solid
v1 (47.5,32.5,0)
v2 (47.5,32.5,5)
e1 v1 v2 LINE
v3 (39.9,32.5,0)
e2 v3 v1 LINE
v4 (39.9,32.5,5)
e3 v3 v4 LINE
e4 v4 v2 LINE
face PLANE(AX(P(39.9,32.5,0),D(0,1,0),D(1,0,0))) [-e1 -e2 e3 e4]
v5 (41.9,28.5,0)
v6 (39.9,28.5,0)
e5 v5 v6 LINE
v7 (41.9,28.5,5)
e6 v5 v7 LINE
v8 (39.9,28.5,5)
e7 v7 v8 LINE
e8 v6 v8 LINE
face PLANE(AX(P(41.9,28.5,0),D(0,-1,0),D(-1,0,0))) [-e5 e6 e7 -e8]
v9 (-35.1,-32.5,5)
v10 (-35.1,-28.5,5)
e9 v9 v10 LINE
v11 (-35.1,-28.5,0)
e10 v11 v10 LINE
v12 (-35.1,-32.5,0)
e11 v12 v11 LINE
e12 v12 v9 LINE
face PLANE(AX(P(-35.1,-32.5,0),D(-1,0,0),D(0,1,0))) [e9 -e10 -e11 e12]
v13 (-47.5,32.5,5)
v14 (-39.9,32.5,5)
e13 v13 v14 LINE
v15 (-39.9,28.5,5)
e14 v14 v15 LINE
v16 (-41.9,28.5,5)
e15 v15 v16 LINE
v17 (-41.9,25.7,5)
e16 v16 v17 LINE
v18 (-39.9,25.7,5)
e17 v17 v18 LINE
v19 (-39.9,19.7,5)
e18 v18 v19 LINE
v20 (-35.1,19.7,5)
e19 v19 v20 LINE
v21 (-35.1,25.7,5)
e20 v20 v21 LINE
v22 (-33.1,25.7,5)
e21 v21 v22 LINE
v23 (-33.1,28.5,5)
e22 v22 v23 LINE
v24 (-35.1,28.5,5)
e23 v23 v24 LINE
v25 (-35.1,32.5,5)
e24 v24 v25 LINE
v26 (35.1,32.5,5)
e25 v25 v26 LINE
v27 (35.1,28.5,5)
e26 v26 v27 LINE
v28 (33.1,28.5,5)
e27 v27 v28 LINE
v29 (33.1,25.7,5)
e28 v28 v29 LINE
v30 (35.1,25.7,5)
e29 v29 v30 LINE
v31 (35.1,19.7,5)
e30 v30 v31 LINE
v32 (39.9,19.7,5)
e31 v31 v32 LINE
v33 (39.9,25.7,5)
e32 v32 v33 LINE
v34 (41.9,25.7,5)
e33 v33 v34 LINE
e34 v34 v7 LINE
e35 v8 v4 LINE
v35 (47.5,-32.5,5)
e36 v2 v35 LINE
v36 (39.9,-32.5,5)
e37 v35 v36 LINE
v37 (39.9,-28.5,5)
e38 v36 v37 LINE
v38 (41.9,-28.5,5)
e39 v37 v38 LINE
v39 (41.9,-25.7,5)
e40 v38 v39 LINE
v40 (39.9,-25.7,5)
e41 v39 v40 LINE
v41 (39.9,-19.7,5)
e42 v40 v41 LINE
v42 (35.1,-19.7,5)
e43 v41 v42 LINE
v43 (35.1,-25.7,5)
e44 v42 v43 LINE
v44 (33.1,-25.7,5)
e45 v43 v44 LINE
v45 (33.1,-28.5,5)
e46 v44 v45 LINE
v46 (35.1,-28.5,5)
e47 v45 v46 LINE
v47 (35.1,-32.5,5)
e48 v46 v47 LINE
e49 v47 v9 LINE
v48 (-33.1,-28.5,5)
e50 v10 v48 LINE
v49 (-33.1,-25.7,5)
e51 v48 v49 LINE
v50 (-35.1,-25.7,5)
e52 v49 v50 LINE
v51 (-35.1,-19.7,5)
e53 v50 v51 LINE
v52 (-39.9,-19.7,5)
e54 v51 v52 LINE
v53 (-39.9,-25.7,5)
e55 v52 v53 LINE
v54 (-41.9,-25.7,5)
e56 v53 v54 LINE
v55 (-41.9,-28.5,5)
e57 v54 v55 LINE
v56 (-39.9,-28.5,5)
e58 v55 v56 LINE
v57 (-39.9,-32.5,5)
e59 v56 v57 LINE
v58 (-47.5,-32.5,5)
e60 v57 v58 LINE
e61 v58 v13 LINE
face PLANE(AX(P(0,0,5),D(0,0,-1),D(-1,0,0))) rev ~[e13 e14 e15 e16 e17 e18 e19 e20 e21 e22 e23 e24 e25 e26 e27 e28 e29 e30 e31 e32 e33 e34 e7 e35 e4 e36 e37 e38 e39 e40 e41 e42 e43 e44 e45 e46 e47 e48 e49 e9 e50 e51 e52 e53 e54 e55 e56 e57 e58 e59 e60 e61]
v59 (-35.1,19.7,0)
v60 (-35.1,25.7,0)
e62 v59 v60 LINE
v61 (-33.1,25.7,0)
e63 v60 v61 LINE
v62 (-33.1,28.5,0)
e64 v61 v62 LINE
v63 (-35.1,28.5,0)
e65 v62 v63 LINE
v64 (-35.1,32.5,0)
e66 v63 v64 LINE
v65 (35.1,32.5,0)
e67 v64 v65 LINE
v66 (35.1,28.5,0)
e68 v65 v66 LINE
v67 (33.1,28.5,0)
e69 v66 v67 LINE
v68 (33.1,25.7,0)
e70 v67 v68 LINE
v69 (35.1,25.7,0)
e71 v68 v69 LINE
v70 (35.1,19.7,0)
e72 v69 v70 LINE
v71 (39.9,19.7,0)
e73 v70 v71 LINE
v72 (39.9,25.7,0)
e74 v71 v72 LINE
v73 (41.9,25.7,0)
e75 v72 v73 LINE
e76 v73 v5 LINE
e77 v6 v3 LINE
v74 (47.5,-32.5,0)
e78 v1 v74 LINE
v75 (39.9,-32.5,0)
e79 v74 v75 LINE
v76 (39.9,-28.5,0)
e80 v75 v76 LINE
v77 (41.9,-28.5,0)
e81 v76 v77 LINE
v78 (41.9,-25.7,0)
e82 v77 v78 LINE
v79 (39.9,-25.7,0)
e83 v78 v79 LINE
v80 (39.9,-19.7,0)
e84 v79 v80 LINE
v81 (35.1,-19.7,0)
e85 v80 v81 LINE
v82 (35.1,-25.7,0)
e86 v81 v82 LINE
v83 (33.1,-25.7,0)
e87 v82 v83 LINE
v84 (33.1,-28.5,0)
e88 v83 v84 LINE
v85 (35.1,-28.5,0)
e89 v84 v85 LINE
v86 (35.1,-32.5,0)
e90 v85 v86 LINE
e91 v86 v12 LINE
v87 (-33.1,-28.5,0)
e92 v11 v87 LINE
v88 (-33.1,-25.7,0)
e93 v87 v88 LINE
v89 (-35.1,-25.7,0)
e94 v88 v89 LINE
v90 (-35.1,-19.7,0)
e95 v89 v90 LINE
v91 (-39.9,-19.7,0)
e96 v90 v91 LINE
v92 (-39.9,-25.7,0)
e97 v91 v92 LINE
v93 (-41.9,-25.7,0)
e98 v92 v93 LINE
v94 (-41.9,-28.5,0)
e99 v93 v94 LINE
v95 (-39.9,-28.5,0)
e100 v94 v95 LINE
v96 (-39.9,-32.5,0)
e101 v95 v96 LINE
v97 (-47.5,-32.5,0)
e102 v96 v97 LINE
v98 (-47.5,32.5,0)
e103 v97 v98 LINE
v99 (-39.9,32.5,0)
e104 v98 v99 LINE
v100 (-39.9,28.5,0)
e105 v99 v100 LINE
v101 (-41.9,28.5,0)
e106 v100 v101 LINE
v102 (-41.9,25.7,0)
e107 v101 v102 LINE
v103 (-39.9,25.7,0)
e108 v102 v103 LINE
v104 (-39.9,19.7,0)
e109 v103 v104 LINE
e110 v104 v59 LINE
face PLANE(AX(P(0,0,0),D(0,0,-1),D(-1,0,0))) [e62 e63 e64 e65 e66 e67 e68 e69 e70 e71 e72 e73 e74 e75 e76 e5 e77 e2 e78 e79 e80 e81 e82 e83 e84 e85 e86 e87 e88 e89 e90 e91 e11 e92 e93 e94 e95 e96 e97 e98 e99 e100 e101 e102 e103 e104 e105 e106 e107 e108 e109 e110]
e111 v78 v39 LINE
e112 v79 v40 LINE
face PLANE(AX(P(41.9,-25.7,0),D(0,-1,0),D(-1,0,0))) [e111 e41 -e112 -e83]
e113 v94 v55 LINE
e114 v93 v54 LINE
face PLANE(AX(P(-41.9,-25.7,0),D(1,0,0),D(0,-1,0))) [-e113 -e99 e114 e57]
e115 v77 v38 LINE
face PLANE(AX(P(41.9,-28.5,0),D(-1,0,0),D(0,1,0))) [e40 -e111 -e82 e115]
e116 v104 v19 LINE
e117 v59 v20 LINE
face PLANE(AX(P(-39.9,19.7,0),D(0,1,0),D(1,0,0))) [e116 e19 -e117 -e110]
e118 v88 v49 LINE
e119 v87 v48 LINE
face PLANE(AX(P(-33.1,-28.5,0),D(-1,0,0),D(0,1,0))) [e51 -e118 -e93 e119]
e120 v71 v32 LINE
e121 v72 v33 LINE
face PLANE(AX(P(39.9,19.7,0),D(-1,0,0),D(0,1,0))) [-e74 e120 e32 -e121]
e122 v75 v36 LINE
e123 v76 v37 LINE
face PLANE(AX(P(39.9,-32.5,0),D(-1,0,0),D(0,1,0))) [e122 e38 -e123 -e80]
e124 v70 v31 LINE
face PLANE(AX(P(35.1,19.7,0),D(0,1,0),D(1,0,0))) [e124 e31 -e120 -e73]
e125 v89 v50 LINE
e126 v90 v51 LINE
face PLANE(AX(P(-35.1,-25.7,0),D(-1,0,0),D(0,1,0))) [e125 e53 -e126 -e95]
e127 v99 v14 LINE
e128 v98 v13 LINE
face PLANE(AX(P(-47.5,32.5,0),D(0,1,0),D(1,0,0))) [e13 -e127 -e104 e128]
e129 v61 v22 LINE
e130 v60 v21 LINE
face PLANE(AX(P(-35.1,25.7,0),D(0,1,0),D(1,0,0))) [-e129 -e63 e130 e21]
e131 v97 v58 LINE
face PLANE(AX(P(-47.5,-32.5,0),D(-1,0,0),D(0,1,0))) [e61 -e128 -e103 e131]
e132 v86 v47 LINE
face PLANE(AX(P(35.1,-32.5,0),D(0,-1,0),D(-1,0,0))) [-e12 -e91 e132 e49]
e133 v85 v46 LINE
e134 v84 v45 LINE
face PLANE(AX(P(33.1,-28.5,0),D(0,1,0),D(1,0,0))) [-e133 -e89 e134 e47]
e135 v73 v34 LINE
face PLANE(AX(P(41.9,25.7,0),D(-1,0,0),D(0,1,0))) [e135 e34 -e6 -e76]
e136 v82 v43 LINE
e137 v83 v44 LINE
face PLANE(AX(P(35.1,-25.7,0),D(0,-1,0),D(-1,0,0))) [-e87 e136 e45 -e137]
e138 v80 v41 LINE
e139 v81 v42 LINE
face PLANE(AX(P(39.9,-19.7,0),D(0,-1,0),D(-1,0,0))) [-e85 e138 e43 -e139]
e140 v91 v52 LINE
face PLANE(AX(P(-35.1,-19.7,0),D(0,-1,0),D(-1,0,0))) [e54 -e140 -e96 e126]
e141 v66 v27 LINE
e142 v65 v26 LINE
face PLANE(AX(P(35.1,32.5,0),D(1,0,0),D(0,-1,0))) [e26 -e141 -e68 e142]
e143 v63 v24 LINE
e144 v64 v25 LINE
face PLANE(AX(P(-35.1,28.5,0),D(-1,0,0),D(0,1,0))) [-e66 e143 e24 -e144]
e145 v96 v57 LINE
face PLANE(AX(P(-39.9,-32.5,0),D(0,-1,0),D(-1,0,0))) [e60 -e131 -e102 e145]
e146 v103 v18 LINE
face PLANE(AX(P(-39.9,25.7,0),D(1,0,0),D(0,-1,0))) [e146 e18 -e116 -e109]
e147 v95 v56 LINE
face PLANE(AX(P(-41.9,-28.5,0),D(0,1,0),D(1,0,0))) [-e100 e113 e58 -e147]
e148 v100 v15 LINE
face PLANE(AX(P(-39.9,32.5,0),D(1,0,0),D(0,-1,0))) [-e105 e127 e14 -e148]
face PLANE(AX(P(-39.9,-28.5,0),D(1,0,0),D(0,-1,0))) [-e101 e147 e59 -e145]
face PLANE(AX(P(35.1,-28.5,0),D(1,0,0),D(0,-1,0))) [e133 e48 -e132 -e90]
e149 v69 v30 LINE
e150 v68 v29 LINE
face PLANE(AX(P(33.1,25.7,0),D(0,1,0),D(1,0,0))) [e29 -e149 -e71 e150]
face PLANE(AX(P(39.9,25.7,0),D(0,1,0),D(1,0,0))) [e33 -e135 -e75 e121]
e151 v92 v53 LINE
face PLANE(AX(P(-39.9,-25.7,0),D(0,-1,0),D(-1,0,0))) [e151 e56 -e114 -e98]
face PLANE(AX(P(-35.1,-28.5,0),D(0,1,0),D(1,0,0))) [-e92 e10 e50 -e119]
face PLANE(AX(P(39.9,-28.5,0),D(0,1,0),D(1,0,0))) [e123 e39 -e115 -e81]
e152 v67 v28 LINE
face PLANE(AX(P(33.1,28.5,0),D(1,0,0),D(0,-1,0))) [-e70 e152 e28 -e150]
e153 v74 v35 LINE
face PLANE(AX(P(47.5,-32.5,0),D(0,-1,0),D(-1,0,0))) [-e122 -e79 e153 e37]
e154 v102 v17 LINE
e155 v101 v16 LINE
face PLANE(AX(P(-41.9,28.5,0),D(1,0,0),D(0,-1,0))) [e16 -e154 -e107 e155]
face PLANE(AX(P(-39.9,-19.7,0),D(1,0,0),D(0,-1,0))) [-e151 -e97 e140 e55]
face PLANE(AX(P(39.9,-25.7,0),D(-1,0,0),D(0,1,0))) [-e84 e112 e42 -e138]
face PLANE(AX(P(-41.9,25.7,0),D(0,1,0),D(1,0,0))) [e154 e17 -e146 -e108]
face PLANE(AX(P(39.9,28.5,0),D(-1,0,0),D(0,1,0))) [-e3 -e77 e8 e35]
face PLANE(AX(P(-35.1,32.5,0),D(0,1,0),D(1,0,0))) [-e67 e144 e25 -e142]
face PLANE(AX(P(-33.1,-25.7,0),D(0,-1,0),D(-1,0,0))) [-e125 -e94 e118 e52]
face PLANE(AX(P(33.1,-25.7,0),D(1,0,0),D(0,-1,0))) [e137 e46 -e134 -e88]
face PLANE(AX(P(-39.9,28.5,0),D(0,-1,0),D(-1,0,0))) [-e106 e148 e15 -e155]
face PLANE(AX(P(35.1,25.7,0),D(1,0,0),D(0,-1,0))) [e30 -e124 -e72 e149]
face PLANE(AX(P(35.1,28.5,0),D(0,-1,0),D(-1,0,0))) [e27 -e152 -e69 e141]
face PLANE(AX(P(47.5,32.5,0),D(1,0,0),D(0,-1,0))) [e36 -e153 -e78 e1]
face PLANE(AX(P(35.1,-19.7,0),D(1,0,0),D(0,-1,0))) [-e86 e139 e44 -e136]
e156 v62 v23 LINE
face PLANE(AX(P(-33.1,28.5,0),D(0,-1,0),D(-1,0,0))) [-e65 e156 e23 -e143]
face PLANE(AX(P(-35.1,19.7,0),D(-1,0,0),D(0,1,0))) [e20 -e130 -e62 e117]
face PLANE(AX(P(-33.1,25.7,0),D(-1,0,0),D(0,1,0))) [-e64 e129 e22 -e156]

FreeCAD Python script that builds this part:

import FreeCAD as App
import Part
import Sketcher
Q = App.Units.Quantity


def add_polygon(sketch, points):
    """Adds a closed chain of lines whose ends are joined by coincident constraints."""
    first, n = sketch.GeometryCount, len(points)
    for a, b in zip(points, points[1:] + points[:1]):
        sketch.addGeometry(Part.LineSegment(App.Vector(*a, 0), App.Vector(*b, 0)), False)
    for i in range(n):
        sketch.addConstraint(Sketcher.Constraint("Coincident", first + i, 2, first + (i + 1) % n, 1))

doc = App.newDocument("Part")
body = doc.addObject("PartDesign::Body", "Body")

sketch1 = body.newObject("Sketcher::SketchObject", "Sketch")
sketch1.AttachmentSupport = (doc.getObject("XY_Plane"), [""])
sketch1.MapMode = "FlatFace"
add_polygon(sketch1, [(-39.9, 32.5), (-47.5, 32.5), (-47.5, -32.5), (-39.9, -32.5), (-39.9, -28.5), (-41.9, -28.5), (-41.9, -25.7), (-39.9, -25.7), (-39.9, -19.7), (-35.1, -19.7), (-35.1, -25.7), (-33.1, -25.7), (-33.1, -28.5), (-35.1, -28.5), (-35.1, -32.5), (35.1, -32.5), (35.1, -28.5), (33.1, -28.5), (33.1, -25.7), (35.1, -25.7), (35.1, -19.7), (39.9, -19.7), (39.9, -25.7), (41.9, -25.7), (41.9, -28.5), (39.9, -28.5), (39.9, -32.5), (47.5, -32.5), (47.5, 32.5), (39.9, 32.5), (39.9, 28.5), (41.9, 28.5), (41.9, 25.7), (39.9, 25.7), (39.9, 19.7), (35.1, 19.7), (35.1, 25.7), (33.1, 25.7), (33.1, 28.5), (35.1, 28.5), (35.1, 32.5), (-35.1, 32.5), (-35.1, 28.5), (-33.1, 28.5), (-33.1, 25.7), (-35.1, 25.7), (-35.1, 19.7), (-39.9, 19.7), (-39.9, 25.7), (-41.9, 25.7), (-41.9, 28.5), (-39.9, 28.5)])
sketch1.addConstraint(Sketcher.Constraint("Horizontal", 0))
sketch1.addConstraint(Sketcher.Constraint("Vertical", 1))
sketch1.addConstraint(Sketcher.Constraint("Horizontal", 2))
sketch1.addConstraint(Sketcher.Constraint("Vertical", 3))
sketch1.addConstraint(Sketcher.Constraint("Horizontal", 4))
sketch1.addConstraint(Sketcher.Constraint("Vertical", 5))
sketch1.addConstraint(Sketcher.Constraint("Horizontal", 6))
sketch1.addConstraint(Sketcher.Constraint("Vertical", 7))
sketch1.addConstraint(Sketcher.Constraint("Horizontal", 8))
sketch1.addConstraint(Sketcher.Constraint("Vertical", 9))
sketch1.addConstraint(Sketcher.Constraint("Horizontal", 10))
sketch1.addConstraint(Sketcher.Constraint("Vertical", 11))
sketch1.addConstraint(Sketcher.Constraint("Horizontal", 12))
sketch1.addConstraint(Sketcher.Constraint("Vertical", 13))
sketch1.addConstraint(Sketcher.Constraint("Horizontal", 14))
sketch1.addConstraint(Sketcher.Constraint("Vertical", 15))
sketch1.addConstraint(Sketcher.Constraint("Horizontal", 16))
sketch1.addConstraint(Sketcher.Constraint("Vertical", 17))
sketch1.addConstraint(Sketcher.Constraint("Horizontal", 18))
sketch1.addConstraint(Sketcher.Constraint("Vertical", 19))
sketch1.addConstraint(Sketcher.Constraint("Horizontal", 20))
sketch1.addConstraint(Sketcher.Constraint("Vertical", 21))
sketch1.addConstraint(Sketcher.Constraint("Horizontal", 22))
sketch1.addConstraint(Sketcher.Constraint("Vertical", 23))
sketch1.addConstraint(Sketcher.Constraint("Horizontal", 24))
sketch1.addConstraint(Sketcher.Constraint("Vertical", 25))
sketch1.addConstraint(Sketcher.Constraint("Horizontal", 26))
sketch1.addConstraint(Sketcher.Constraint("Vertical", 27))
sketch1.addConstraint(Sketcher.Constraint("Horizontal", 28))
sketch1.addConstraint(Sketcher.Constraint("Vertical", 29))
sketch1.addConstraint(Sketcher.Constraint("Horizontal", 30))
sketch1.addConstraint(Sketcher.Constraint("Vertical", 31))
sketch1.addConstraint(Sketcher.Constraint("Horizontal", 32))
sketch1.addConstraint(Sketcher.Constraint("Vertical", 33))
sketch1.addConstraint(Sketcher.Constraint("Horizontal", 34))
sketch1.addConstraint(Sketcher.Constraint("Vertical", 35))
sketch1.addConstraint(Sketcher.Constraint("Horizontal", 36))
sketch1.addConstraint(Sketcher.Constraint("Vertical", 37))
sketch1.addConstraint(Sketcher.Constraint("Horizontal", 38))
sketch1.addConstraint(Sketcher.Constraint("Vertical", 39))
sketch1.addConstraint(Sketcher.Constraint("Horizontal", 40))
sketch1.addConstraint(Sketcher.Constraint("Vertical", 41))
sketch1.addConstraint(Sketcher.Constraint("Horizontal", 42))
sketch1.addConstraint(Sketcher.Constraint("Vertical", 43))
sketch1.addConstraint(Sketcher.Constraint("Horizontal", 44))
sketch1.addConstraint(Sketcher.Constraint("Vertical", 45))
sketch1.addConstraint(Sketcher.Constraint("Horizontal", 46))
sketch1.addConstraint(Sketcher.Constraint("Vertical", 47))
sketch1.addConstraint(Sketcher.Constraint("Horizontal", 48))
sketch1.addConstraint(Sketcher.Constraint("Vertical", 49))
sketch1.addConstraint(Sketcher.Constraint("Horizontal", 50))
sketch1.addConstraint(Sketcher.Constraint("Vertical", 51))
sketch1.addConstraint(Sketcher.Constraint("Symmetric", 0, 2, 26, 2, -1, 1))
sketch1.addConstraint(Sketcher.Constraint("Symmetric", 2, 2, 28, 2, -1, 1))
sketch1.addConstraint(Sketcher.Constraint("Symmetric", 4, 2, 30, 2, -1, 1))
sketch1.addConstraint(Sketcher.Constraint("Symmetric", 6, 2, 32, 2, -1, 1))
sketch1.addConstraint(Sketcher.Constraint("Symmetric", 8, 2, 34, 2, -1, 1))
sketch1.addConstraint(Sketcher.Constraint("Symmetric", 10, 2, 36, 2, -1, 1))
sketch1.addConstraint(Sketcher.Constraint("Symmetric", 12, 2, 38, 2, -1, 1))
sketch1.addConstraint(Sketcher.Constraint("Symmetric", 14, 2, 40, 2, -1, 1))
sketch1.addConstraint(Sketcher.Constraint("Symmetric", 16, 2, 42, 2, -1, 1))
sketch1.addConstraint(Sketcher.Constraint("Symmetric", 18, 2, 44, 2, -1, 1))
sketch1.addConstraint(Sketcher.Constraint("Symmetric", 20, 2, 46, 2, -1, 1))
sketch1.addConstraint(Sketcher.Constraint("Symmetric", 22, 2, 48, 2, -1, 1))
sketch1.addConstraint(Sketcher.Constraint("Symmetric", 24, 2, 50, 2, -1, 1))
sketch1.addConstraint(Sketcher.Constraint("Symmetric", 12, 2, 15, 2, -2))
sketch1.addConstraint(Sketcher.Constraint("Symmetric", 10, 2, 17, 2, -2))
sketch1.addConstraint(Sketcher.Constraint("Symmetric", 8, 2, 19, 2, -2))
sketch1.addConstraint(Sketcher.Constraint("Symmetric", 6, 2, 21, 2, -2))
sketch1.addConstraint(Sketcher.Constraint("Symmetric", 4, 2, 23, 2, -2))
sketch1.addConstraint(Sketcher.Constraint("Symmetric", 2, 2, 25, 2, -2))
sketch1.addConstraint(Sketcher.Constraint("Horizontal", 6, 2, 9, 2))
sketch1.addConstraint(Sketcher.Constraint("Horizontal", 4, 2, 11, 2))
sketch1.addConstraint(Sketcher.Constraint("Horizontal", 2, 2, 13, 2))
sketch1.addConstraint(Sketcher.Constraint("Vertical", 3, 2, 6, 2))
sketch1.addConstraint(Sketcher.Constraint("Vertical", 9, 2, 12, 2))
sketch1.addConstraint(Sketcher.Constraint("Equal", 6, 10))
sketch1.addConstraint(Sketcher.Constraint("DistanceX", 4, 2, 4, 1, Q("2 mm")))
sketch1.addConstraint(Sketcher.Constraint("DistanceY", 1, 2, 1, 1, Q("65 mm")))
sketch1.addConstraint(Sketcher.Constraint("DistanceY", 3, 1, 3, 2, Q("4 mm")))
sketch1.addConstraint(Sketcher.Constraint("DistanceY", 7, 1, 7, 2, Q("6 mm")))
sketch1.addConstraint(Sketcher.Constraint("DistanceX", 0, 2, 0, 1, Q("7.6 mm")))
sketch1.addConstraint(Sketcher.Constraint("DistanceX", 8, 1, 8, 2, Q("4.8 mm")))
sketch1.addConstraint(Sketcher.Constraint("DistanceX", 14, 1, 14, 2, Q("70.2 mm")))
sketch1.addConstraint(Sketcher.Constraint("DistanceY", 5, 1, 5, 2, Q("2.8 mm")))
pad1 = body.newObject("PartDesign::Pad", "Pad")
pad1.Profile = sketch1
pad1.Length = 5

doc.recompute()
